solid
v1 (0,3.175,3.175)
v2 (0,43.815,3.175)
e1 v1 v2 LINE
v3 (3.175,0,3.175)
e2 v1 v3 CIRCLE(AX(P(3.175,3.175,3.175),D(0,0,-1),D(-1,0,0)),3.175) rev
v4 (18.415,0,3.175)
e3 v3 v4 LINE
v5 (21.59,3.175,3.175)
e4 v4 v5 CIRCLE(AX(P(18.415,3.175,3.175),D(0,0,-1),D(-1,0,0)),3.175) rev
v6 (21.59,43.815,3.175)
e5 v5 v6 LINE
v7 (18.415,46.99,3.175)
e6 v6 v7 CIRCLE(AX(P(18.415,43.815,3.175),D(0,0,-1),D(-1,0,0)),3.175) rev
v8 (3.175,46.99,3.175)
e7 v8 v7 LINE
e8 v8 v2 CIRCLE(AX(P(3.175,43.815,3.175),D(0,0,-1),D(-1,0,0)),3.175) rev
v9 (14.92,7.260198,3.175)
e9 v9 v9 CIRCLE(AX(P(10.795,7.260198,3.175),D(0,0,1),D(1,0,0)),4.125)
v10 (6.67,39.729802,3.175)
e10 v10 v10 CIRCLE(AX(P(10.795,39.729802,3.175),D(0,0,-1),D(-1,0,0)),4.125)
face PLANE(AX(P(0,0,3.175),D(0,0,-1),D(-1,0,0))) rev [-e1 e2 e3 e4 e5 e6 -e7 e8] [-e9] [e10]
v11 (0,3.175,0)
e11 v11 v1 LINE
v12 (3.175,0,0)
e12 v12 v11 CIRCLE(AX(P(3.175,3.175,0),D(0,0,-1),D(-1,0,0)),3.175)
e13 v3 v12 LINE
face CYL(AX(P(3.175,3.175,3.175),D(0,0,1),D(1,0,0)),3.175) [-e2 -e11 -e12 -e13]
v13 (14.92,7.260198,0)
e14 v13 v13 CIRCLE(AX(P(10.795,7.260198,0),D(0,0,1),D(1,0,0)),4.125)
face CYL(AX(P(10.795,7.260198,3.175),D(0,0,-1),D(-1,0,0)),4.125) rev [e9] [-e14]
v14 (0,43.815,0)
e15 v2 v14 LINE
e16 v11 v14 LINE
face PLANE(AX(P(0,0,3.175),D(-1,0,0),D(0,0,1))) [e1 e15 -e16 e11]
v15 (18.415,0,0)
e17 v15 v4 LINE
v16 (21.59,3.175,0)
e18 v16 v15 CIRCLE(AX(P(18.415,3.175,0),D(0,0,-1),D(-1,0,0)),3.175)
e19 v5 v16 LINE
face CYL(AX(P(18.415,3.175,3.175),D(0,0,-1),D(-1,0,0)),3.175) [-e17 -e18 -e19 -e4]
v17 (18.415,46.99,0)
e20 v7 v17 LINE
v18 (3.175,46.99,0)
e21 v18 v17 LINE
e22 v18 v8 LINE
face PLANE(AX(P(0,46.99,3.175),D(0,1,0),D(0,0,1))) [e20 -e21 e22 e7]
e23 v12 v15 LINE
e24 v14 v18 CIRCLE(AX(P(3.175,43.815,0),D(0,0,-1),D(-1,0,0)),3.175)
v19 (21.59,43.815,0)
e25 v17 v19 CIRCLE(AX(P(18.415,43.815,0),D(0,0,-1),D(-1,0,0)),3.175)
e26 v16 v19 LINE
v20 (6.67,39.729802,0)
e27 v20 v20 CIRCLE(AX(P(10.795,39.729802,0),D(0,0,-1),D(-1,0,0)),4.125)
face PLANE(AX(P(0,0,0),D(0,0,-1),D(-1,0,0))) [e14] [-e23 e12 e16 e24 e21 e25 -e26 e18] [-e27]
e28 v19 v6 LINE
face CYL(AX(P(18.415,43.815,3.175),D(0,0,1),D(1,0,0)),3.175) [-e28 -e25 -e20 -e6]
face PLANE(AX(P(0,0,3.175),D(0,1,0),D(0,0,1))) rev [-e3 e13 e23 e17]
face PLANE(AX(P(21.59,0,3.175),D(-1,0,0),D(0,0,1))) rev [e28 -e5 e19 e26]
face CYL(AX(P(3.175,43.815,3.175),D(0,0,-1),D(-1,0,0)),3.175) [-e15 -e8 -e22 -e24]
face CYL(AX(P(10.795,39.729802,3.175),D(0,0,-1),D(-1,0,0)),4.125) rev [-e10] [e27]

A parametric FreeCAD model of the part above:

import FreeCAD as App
import Part
import Sketcher
Q = App.Units.Quantity


def edges_at(feature, points):
    """Names of the edges that pass closest to the given points."""
    edges = feature.Shape.Edges
    near = lambda p: min(range(len(edges)), key=lambda i: edges[i].distToShape(Part.Vertex(*p))[0])
    return sorted({f"Edge{near(p) + 1}" for p in points})


def add_polygon(sketch, points):
    """Adds a closed chain of lines whose ends are joined by coincident constraints."""
    first, n = sketch.GeometryCount, len(points)
    for a, b in zip(points, points[1:] + points[:1]):
        sketch.addGeometry(Part.LineSegment(App.Vector(*a, 0), App.Vector(*b, 0)), False)
    for i in range(n):
        sketch.addConstraint(Sketcher.Constraint("Coincident", first + i, 2, first + (i + 1) % n, 1))

doc = App.newDocument("Part")
body = doc.addObject("PartDesign::Body", "Body")

# Sketch on XY plane
sketch1 = body.newObject("Sketcher::SketchObject", "Sketch")
sketch1.AttachmentSupport = (doc.getObject("XY_Plane"), [""])
sketch1.MapMode = "FlatFace"
add_polygon(sketch1, [(0, 46.99), (0, 0), (21.59, 0), (21.59, 46.99)])  # lines 0-3
sketch1.addGeometry(Part.Circle(App.Vector(10.795, 7.260198, 0), App.Vector(0, 0, 1), 4.125), False)  # 4
sketch1.addGeometry(Part.Circle(App.Vector(10.795, 39.729802, 0), App.Vector(0, 0, 1), 4.125), False)  # 5
sketch1.addConstraint([
    Sketcher.Constraint("Vertical", 0),
    Sketcher.Constraint("Horizontal", 1),
    Sketcher.Constraint("Vertical", 2),
    Sketcher.Constraint("Horizontal", 3),
    Sketcher.Constraint("Coincident", 0, 2, -1, 1),
    Sketcher.Constraint("Equal", 4, 5),
    Sketcher.Constraint("Vertical", 4, 3, 5, 3),
    Sketcher.Constraint("DistanceX", 1, 1, 1, 2, Q("0.85 in")),
    Sketcher.Constraint("DistanceY", 0, 2, 0, 1, Q("1.85 in")),
    Sketcher.Constraint("Diameter", 4, 8.25),
    Sketcher.Constraint("DistanceX", -1, 1, 4, 3, Q("0.425 in")),
    Sketcher.Constraint("DistanceY", -1, 1, 4, 3, 7.260198),
    Sketcher.Constraint("DistanceY", -1, 1, 5, 3, 39.729802),
])
pad1 = body.newObject("PartDesign::Pad", "Pad")
pad1.Profile = sketch1
pad1.Length = Q("0.125 in")
doc.recompute()

fillet = body.newObject("PartDesign::Fillet", "Fillet")
fillet.Base = (pad1, edges_at(pad1, [
    (0, 0, 1.587),
    (21.59, 0, 1.587),
    (21.59, 46.99, 1.587),
    (0, 46.99, 1.587),
]))
fillet.Radius = Q("0.125 in")

doc.recompute()
